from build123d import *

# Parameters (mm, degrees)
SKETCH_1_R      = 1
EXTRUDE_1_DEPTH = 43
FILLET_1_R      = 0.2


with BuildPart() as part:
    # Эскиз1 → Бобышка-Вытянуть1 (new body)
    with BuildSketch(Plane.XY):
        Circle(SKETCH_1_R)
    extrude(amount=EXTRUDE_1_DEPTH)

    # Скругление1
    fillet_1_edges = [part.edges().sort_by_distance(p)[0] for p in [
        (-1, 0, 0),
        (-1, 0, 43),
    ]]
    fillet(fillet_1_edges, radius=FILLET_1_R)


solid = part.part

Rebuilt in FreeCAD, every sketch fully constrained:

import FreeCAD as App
import Part
import Sketcher
from FreeCAD import Vector


def edges_at(feature, points):
    """Names of the edges that pass closest to the given points."""
    edges = feature.Shape.Edges
    near = lambda p: min(range(len(edges)), key=lambda i: edges[i].distToShape(Part.Vertex(*p))[0])
    return sorted({f"Edge{near(p) + 1}" for p in points})

doc = App.newDocument("Part")
body = doc.addObject("PartDesign::Body", "Body")

sketch1 = body.newObject("Sketcher::SketchObject", "Sketch")
sketch1.AttachmentSupport = (doc.getObject("XY_Plane"), [""])
sketch1.MapMode = "FlatFace"
sketch1.addGeometry(Part.Circle(Vector(0, 0, 0), Vector(0, 0, 1), 1), False)
sketch1.addConstraint(Sketcher.Constraint("Coincident", 0, 3, -1, 1))
sketch1.addConstraint(Sketcher.Constraint("Diameter", 0, 2.0))
pad1 = body.newObject("PartDesign::Pad", "Pad")
pad1.Profile = sketch1
pad1.Length = 43
doc.recompute()

fillet = body.newObject("PartDesign::Fillet", "Fillet")
fillet.Base = (pad1, edges_at(pad1, [(-1, 0, 0), (-1, 0, 43)]))
fillet.Radius = 0.2

doc.recompute()
